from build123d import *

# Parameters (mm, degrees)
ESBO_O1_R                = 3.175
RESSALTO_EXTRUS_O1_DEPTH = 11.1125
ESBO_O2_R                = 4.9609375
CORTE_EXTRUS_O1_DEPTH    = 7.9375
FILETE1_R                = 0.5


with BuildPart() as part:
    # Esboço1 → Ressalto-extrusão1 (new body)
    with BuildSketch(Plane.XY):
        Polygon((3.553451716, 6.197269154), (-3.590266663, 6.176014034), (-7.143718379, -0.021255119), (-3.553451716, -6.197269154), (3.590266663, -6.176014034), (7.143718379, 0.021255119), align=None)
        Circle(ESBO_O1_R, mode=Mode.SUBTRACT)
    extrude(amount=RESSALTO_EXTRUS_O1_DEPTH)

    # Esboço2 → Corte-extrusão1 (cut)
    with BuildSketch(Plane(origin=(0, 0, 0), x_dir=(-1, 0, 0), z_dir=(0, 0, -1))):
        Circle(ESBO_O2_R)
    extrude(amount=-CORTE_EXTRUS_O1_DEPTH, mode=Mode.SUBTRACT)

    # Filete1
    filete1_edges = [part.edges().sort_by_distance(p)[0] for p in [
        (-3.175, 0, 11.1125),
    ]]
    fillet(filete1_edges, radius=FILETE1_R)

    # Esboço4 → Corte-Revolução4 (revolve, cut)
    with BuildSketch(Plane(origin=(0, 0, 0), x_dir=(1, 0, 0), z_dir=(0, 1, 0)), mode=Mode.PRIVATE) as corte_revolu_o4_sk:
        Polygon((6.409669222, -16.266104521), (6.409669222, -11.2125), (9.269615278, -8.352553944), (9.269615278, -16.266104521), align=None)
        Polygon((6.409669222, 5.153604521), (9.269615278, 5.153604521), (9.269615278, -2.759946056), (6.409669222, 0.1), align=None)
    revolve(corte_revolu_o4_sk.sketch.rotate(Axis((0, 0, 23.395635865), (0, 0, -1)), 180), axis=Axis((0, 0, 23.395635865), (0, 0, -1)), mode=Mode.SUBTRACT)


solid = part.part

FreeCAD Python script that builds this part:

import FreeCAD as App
import Part
import Sketcher
from FreeCAD import Vector
Q = App.Units.Quantity


def edges_at(feature, points):
    """Names of the edges that pass closest to the given points."""
    edges = feature.Shape.Edges
    near = lambda p: min(range(len(edges)), key=lambda i: edges[i].distToShape(Part.Vertex(*p))[0])
    return sorted({f"Edge{near(p) + 1}" for p in points})

doc = App.newDocument("Part")
body = doc.addObject("PartDesign::Body", "Body")

# Sketch on XY plane
sketch1 = body.newObject("Sketcher::SketchObject", "Sketch")
sketch1.AttachmentSupport = (doc.getObject("XY_Plane"), [""])
sketch1.MapMode = "FlatFace"
sketch1.addGeometry([
    Part.LineSegment(Vector(3.6, 6.2, 0), Vector(-3.6, 6.2, 0)),  # 0
    Part.LineSegment(Vector(-3.6, 6.2, 0), Vector(-7.1, 0, 0)),  # 1
    Part.LineSegment(Vector(-7.1, 0, 0), Vector(-3.6, -6.2, 0)),  # 2
    Part.LineSegment(Vector(-3.6, -6.2, 0), Vector(3.6, -6.2, 0)),  # 3
    Part.LineSegment(Vector(3.6, -6.2, 0), Vector(7.1, 0, 0)),  # 4
    Part.LineSegment(Vector(7.1, 0, 0), Vector(3.6, 6.2, 0)),  # 5
    Part.Circle(Vector(0, 0, 0), Vector(0, 0, 1), 3.2),  # 6
], False)
sketch1.addConstraint([
    Sketcher.Constraint("Coincident", 0, 2, 1, 1),
    Sketcher.Constraint("Coincident", 1, 2, 2, 1),
    Sketcher.Constraint("Coincident", 2, 2, 3, 1),
    Sketcher.Constraint("Coincident", 3, 2, 4, 1),
    Sketcher.Constraint("Coincident", 4, 2, 5, 1),
    Sketcher.Constraint("Coincident", 5, 2, 0, 1),
    Sketcher.Constraint("Coincident", 6, 3, -1, 1),
    Sketcher.Constraint("Symmetric", 0, 2, 3, 2, -1, 1),
    Sketcher.Constraint("Symmetric", 1, 2, 4, 2, -1, 1),
    Sketcher.Constraint("Symmetric", 2, 2, 5, 2, -1, 1),
    Sketcher.Constraint("Equal", 0, 1),
    Sketcher.Constraint("Equal", 1, 2),
    Sketcher.Constraint("Diameter", 6, Q("0.25 in")),
    Sketcher.Constraint("Distance", 0, Q("0.28125 in")),
    Sketcher.Constraint("DistanceX", 1, 2, -1, 1, Q("7.143718 mm")),
    Sketcher.Constraint("DistanceX", 2, 2, -1, 1, Q("3.553452 mm")),
    Sketcher.Constraint("DistanceY", 2, 2, -1, 1, Q("6.197269 mm")),
])
pad1 = body.newObject("PartDesign::Pad", "Pad")
pad1.Profile = sketch1
pad1.Length = Q("0.4375 in")

# Sketch on XY plane
sketch2 = body.newObject("Sketcher::SketchObject", "Sketch001")
sketch2.AttachmentSupport = (doc.getObject("XY_Plane"), [""])
sketch2.MapMode = "FlatFace"
sketch2.addGeometry(Part.Circle(Vector(0, 0, 0), Vector(0, 0, 1), 5), False)
sketch2.addConstraint([
    Sketcher.Constraint("Coincident", 0, 3, -1, 1),
    Sketcher.Constraint("Diameter", 0, Q("0.390625 in")),
])
pocket1 = body.newObject("PartDesign::Pocket", "Pocket")
pocket1.Profile = sketch2
pocket1.Length = Q("0.3125 in")
pocket1.Reversed = True
doc.recompute()

fillet = body.newObject("PartDesign::Fillet", "Fillet")
fillet.Base = (pocket1, edges_at(pocket1, [(-3.175, 0, 11.113)]))
fillet.Radius = 0.5

# Sketch on XZ plane
sketch3 = body.newObject("Sketcher::SketchObject", "Sketch002")
sketch3.AttachmentSupport = (doc.getObject("XZ_Plane"), [""])
sketch3.MapMode = "FlatFace"
sketch3.addGeometry([
    Part.LineSegment(Vector(6.4, 11.2, 0), Vector(6.4, 16.3, 0)),  # 0
    Part.LineSegment(Vector(6.4, 16.3, 0), Vector(9.3, 16.3, 0)),  # 1
    Part.LineSegment(Vector(9.3, 16.3, 0), Vector(9.3, 8.4, 0)),  # 2
    Part.LineSegment(Vector(9.3, 8.4, 0), Vector(6.4, 11.2, 0)),  # 3
    Part.LineSegment(Vector(9.3, -5.2, 0), Vector(6.4, -5.2, 0)),  # 4
    Part.LineSegment(Vector(6.4, -5.2, 0), Vector(6.4, -0.1, 0)),  # 5
    Part.LineSegment(Vector(6.4, -0.1, 0), Vector(9.3, 2.8, 0)),  # 6
    Part.LineSegment(Vector(9.3, 2.8, 0), Vector(9.3, -5.2, 0)),  # 7
], False)
sketch3.addConstraint([
    Sketcher.Constraint("Coincident", 0, 2, 1, 1),
    Sketcher.Constraint("Coincident", 1, 2, 2, 1),
    Sketcher.Constraint("Coincident", 2, 2, 3, 1),
    Sketcher.Constraint("Coincident", 3, 2, 0, 1),
    Sketcher.Constraint("Coincident", 4, 2, 5, 1),
    Sketcher.Constraint("Coincident", 5, 2, 6, 1),
    Sketcher.Constraint("Coincident", 6, 2, 7, 1),
    Sketcher.Constraint("Coincident", 7, 2, 4, 1),
    Sketcher.Constraint("Vertical", 0),
    Sketcher.Constraint("Horizontal", 1),
    Sketcher.Constraint("Vertical", 2),
    Sketcher.Constraint("Horizontal", 4),
    Sketcher.Constraint("Vertical", 5),
    Sketcher.Constraint("Vertical", 7),
    Sketcher.Constraint("Perpendicular", 3, 6),
    Sketcher.Constraint("Vertical", 3, 2, 4, 2),
    Sketcher.Constraint("Vertical", 2, 2, 6, 2),
    Sketcher.Constraint("Equal", 0, 5),
    Sketcher.Constraint("Equal", 2, 7),
    Sketcher.Constraint("DistanceY", 2, 2, 2, 1, Q("7.913551 mm")),
    Sketcher.Constraint("DistanceY", -1, 1, 3, 2, Q("11.2125 mm")),
    Sketcher.Constraint("DistanceY", 5, 2, -1, 1, Q("0.1 mm")),
    Sketcher.Constraint("DistanceX", 1, 1, 1, 2, Q("2.859946 mm")),
    Sketcher.Constraint("DistanceX", -1, 1, 0, 2, Q("6.409669 mm")),
])
groove = body.newObject("PartDesign::Groove", "Groove")
groove.Profile = sketch3
groove.ReferenceAxis = (sketch3, ["V_Axis"])
groove.Angle = 360

doc.recompute()
